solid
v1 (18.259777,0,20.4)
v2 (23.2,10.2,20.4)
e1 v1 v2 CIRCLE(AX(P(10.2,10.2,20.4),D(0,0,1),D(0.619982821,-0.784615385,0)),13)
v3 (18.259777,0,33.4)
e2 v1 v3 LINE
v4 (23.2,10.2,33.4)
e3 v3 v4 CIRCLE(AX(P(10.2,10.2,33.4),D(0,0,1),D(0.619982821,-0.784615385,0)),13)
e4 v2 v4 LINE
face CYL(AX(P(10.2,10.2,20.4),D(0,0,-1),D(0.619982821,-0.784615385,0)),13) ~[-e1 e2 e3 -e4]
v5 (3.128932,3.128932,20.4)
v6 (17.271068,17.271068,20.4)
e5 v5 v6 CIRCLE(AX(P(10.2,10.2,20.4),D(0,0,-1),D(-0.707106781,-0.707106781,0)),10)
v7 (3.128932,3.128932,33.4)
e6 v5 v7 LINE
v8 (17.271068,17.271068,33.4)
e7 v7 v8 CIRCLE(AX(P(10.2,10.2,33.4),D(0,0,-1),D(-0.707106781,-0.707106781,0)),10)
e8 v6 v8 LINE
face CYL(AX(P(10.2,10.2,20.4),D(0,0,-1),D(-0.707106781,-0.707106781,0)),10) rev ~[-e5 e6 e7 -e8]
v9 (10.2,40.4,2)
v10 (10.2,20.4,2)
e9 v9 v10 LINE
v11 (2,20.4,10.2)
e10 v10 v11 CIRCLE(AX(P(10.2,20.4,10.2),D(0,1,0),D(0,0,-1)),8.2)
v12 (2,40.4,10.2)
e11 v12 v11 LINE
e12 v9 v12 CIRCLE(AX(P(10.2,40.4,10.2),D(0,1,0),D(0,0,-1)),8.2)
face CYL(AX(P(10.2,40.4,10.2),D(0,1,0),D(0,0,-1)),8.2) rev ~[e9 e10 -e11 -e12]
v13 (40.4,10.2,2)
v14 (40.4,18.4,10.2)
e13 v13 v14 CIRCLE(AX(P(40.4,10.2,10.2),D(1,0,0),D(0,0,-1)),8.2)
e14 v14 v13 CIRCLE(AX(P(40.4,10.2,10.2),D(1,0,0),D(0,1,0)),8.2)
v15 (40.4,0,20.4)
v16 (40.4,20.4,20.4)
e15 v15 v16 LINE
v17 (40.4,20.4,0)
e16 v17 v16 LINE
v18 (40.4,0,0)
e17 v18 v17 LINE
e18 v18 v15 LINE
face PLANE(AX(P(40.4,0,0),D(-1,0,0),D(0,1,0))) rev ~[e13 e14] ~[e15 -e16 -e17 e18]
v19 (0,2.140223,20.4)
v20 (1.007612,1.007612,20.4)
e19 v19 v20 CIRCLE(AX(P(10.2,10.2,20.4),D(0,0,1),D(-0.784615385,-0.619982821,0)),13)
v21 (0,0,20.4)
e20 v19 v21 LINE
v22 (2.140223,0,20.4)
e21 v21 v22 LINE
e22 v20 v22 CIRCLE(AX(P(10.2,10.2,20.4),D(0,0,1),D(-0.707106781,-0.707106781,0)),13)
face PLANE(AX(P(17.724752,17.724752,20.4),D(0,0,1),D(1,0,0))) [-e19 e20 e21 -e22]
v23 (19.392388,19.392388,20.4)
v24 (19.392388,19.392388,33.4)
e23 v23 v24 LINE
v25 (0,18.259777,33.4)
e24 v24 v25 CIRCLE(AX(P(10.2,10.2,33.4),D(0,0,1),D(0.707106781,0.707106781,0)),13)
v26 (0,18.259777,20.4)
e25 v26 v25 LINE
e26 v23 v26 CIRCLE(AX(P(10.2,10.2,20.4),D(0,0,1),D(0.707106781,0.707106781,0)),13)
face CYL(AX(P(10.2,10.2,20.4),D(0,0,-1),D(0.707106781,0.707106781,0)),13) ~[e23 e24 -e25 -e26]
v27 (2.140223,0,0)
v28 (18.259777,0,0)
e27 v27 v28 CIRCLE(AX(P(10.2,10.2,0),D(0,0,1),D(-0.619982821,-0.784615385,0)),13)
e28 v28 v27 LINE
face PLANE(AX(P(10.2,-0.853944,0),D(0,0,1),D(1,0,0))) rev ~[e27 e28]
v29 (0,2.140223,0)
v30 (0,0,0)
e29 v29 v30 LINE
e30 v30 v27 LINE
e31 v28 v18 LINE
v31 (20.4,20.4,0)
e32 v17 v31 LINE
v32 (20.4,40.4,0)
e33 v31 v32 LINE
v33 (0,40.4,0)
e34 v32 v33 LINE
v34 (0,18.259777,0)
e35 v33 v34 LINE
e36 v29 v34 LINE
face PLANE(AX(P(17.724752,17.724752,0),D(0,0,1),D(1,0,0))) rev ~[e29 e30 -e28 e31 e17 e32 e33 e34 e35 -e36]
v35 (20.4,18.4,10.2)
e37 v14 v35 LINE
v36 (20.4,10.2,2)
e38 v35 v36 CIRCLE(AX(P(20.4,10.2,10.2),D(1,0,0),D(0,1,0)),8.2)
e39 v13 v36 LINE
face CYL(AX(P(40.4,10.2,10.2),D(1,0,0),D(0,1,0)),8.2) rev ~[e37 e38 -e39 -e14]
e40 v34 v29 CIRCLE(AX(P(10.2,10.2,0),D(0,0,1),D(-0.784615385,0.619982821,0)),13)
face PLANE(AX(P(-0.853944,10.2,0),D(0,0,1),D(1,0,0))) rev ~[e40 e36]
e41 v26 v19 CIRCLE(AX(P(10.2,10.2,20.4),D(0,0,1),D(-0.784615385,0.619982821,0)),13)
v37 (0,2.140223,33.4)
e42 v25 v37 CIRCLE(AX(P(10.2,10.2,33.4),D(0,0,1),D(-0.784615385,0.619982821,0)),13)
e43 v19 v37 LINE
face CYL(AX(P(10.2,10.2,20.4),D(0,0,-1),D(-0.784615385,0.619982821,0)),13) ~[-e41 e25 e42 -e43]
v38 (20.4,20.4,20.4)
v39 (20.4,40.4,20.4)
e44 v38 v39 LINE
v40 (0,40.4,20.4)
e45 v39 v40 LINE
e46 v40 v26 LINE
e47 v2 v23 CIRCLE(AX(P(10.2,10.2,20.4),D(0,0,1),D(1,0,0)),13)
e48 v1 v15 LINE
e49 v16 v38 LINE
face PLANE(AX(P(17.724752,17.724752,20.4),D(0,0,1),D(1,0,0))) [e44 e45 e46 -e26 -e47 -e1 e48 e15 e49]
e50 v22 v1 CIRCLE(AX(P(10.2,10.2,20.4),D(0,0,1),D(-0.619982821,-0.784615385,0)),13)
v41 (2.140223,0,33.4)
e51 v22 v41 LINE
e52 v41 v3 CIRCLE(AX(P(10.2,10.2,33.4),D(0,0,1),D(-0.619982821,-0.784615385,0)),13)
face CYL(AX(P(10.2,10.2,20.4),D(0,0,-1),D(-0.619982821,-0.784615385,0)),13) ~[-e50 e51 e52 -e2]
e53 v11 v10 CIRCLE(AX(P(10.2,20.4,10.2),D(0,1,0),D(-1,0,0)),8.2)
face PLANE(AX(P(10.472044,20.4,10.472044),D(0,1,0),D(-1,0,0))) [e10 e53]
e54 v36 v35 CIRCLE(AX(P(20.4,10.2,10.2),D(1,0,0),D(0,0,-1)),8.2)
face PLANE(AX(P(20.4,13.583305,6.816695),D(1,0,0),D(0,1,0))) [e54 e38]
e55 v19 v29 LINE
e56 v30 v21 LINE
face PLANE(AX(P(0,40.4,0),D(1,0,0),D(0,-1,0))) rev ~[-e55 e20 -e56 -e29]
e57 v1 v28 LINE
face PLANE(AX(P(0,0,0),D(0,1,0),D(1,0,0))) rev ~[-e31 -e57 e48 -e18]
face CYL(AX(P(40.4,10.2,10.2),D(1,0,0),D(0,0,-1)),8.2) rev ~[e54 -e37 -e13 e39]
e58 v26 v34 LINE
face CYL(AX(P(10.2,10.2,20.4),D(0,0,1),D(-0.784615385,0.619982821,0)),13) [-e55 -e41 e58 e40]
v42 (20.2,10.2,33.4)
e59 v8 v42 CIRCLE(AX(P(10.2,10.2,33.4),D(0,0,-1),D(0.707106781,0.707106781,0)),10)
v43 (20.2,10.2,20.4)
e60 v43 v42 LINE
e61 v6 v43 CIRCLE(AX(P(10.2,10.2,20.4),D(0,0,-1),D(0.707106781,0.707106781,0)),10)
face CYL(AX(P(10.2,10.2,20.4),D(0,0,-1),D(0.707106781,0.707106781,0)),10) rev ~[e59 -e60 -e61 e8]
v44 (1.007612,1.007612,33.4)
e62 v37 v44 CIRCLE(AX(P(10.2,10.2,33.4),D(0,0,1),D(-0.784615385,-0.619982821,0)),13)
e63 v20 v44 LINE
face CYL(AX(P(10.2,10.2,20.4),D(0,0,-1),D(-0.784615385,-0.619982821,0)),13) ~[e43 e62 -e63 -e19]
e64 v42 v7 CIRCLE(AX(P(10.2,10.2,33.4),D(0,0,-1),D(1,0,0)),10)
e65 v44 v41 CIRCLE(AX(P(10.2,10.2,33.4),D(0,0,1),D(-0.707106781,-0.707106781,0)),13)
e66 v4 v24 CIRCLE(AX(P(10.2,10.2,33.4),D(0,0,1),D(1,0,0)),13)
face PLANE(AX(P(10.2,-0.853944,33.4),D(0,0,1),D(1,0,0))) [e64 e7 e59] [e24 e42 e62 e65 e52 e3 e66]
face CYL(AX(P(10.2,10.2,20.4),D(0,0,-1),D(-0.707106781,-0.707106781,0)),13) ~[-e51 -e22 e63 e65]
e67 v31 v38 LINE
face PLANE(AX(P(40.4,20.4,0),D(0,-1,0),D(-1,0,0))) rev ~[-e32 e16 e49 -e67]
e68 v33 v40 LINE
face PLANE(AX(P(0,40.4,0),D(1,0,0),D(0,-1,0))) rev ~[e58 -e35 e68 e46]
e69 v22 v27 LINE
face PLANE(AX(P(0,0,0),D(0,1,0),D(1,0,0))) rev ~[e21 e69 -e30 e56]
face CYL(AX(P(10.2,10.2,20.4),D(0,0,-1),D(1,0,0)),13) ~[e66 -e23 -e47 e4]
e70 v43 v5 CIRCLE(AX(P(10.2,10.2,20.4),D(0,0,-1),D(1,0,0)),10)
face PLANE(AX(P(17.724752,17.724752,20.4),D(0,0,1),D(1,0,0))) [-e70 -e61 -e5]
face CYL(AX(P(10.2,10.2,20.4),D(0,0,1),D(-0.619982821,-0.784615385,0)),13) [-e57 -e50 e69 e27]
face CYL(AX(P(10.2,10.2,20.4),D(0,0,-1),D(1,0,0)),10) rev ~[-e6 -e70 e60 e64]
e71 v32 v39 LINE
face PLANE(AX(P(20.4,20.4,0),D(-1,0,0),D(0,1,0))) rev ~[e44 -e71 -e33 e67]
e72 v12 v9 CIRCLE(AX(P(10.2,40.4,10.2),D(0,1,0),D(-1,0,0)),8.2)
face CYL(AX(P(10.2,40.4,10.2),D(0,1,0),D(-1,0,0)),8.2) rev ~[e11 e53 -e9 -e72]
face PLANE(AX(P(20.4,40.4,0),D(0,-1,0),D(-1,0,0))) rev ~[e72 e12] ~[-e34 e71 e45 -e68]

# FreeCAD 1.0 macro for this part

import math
import FreeCAD as App
import Part
import Sketcher
from FreeCAD import Vector

doc = App.newDocument("Part")
body = doc.addObject("PartDesign::Body", "Body")

sketch1 = body.newObject("Sketcher::SketchObject", "Sketch")
sketch1.AttachmentSupport = (doc.getObject("XY_Plane"), [""])
sketch1.MapMode = "FlatFace"
sketch1.addGeometry([
    Part.LineSegment(Vector(0, 40.4, 0), Vector(0, 0, 0)),
    Part.LineSegment(Vector(0, 0, 0), Vector(40.4, 0, 0)),
    Part.LineSegment(Vector(40.4, 0, 0), Vector(40.4, 20.4, 0)),
    Part.LineSegment(Vector(40.4, 20.4, 0), Vector(20.4, 20.4, 0)),
    Part.LineSegment(Vector(20.4, 20.4, 0), Vector(20.4, 40.4, 0)),
    Part.LineSegment(Vector(20.4, 40.4, 0), Vector(0, 40.4, 0)),
], False)
sketch1.addConstraint([
    Sketcher.Constraint("Coincident", 0, 2, 1, 1),
    Sketcher.Constraint("Coincident", 1, 2, 2, 1),
    Sketcher.Constraint("Coincident", 2, 2, 3, 1),
    Sketcher.Constraint("Coincident", 3, 2, 4, 1),
    Sketcher.Constraint("Coincident", 4, 2, 5, 1),
    Sketcher.Constraint("Coincident", 5, 2, 0, 1),
    Sketcher.Constraint("Vertical", 0),
    Sketcher.Constraint("Horizontal", 1),
    Sketcher.Constraint("Vertical", 2),
    Sketcher.Constraint("Horizontal", 3),
    Sketcher.Constraint("Vertical", 4),
    Sketcher.Constraint("Horizontal", 5),
    Sketcher.Constraint("Coincident", 0, 2, -1, 1),
    Sketcher.Constraint("Equal", 1, 0),
    Sketcher.Constraint("Equal", 5, 2),
    Sketcher.Constraint("DistanceX", 3, 2, 3, 1, 20.0),
    Sketcher.Constraint("DistanceX", 1, 1, 1, 2, 40.4),
])
pad1 = body.newObject("PartDesign::Pad", "Pad")
pad1.Profile = sketch1
pad1.Length = 20.4

sketch2 = body.newObject("Sketcher::SketchObject", "Sketch001")
sketch2.AttachmentSupport = (doc.getObject("XZ_Plane"), [""])
sketch2.MapMode = "FlatFace"
sketch2.AttachmentOffset = App.Placement(Vector(0, 0, -40.4), App.Rotation())
sketch2.addGeometry([
    Part.ArcOfCircle(Part.Circle(Vector(10.2, 10.2, 0), Vector(0, 0, 1), 8.2), math.radians(-90), math.radians(180)),
    Part.ArcOfCircle(Part.Circle(Vector(10.2, 10.2, 0), Vector(0, 0, 1), 8.2), math.radians(180), math.radians(270)),
], False)
sketch2.addConstraint([
    Sketcher.Constraint("Tangent", 0, 1, 1, 2),
    Sketcher.Constraint("Coincident", 1, 1, 0, 2),
    Sketcher.Constraint("Horizontal", 0, 3, 1, 1),
    Sketcher.Constraint("Vertical", 1, 3, 0, 1),
    Sketcher.Constraint("Radius", 0, 8.2),
    Sketcher.Constraint("DistanceY", -1, 1, 0, 1, 2.0),
    Sketcher.Constraint("DistanceX", -1, 1, 1, 1, 2.0),
])
pocket1 = body.newObject("PartDesign::Pocket", "Pocket")
pocket1.Profile = sketch2
pocket1.Length = 20
pocket1.Reversed = True

sketch3 = body.newObject("Sketcher::SketchObject", "Sketch002")
sketch3.AttachmentSupport = (doc.getObject("YZ_Plane"), [""])
sketch3.MapMode = "FlatFace"
sketch3.AttachmentOffset = App.Placement(Vector(0, 0, 40.4), App.Rotation())
sketch3.addGeometry([
    Part.ArcOfCircle(Part.Circle(Vector(10.2, 10.2, 0), Vector(0, 0, 1), 8.2), math.radians(-90), math.radians(0)),
    Part.ArcOfCircle(Part.Circle(Vector(10.2, 10.2, 0), Vector(0, 0, 1), 8.2), math.radians(0), math.radians(270)),
], False)
sketch3.addConstraint([
    Sketcher.Constraint("Tangent", 0, 1, 1, 2),
    Sketcher.Constraint("Coincident", 1, 1, 0, 2),
    Sketcher.Constraint("Horizontal", 0, 3, 1, 1),
    Sketcher.Constraint("Vertical", 1, 3, 0, 1),
    Sketcher.Constraint("Radius", 0, 8.2),
    Sketcher.Constraint("DistanceY", -1, 1, 0, 1, 2.0),
    Sketcher.Constraint("DistanceX", -1, 1, 0, 3, 10.2),
])
pocket2 = body.newObject("PartDesign::Pocket", "Pocket001")
pocket2.Profile = sketch3
pocket2.Length = 20

sketch4 = body.newObject("Sketcher::SketchObject", "Sketch003")
sketch4.AttachmentSupport = (doc.getObject("XY_Plane"), [""])
sketch4.MapMode = "FlatFace"
sketch4.AttachmentOffset = App.Placement(Vector(0, 0, 20.4), App.Rotation())
sketch4.addGeometry([
    Part.ArcOfCircle(Part.Circle(Vector(10.2, 10.2, 0), Vector(0, 0, 1), 13), math.radians(-128.31488), math.radians(-51.68512)),
    Part.ArcOfCircle(Part.Circle(Vector(10.2, 10.2, 0), Vector(0, 0, 1), 13), math.radians(-51.68512), math.radians(0)),
    Part.ArcOfCircle(Part.Circle(Vector(10.2, 10.2, 0), Vector(0, 0, 1), 13), math.radians(0), math.radians(45)),
    Part.ArcOfCircle(Part.Circle(Vector(10.2, 10.2, 0), Vector(0, 0, 1), 13), math.radians(45), math.radians(141.68512)),
    Part.ArcOfCircle(Part.Circle(Vector(10.2, 10.2, 0), Vector(0, 0, 1), 13), math.radians(141.68512), math.radians(218.31488)),
    Part.ArcOfCircle(Part.Circle(Vector(10.2, 10.2, 0), Vector(0, 0, 1), 13), math.radians(-141.68512), math.radians(-135)),
    Part.ArcOfCircle(Part.Circle(Vector(10.2, 10.2, 0), Vector(0, 0, 1), 13), math.radians(-135), math.radians(-128.31488)),
    Part.ArcOfCircle(Part.Circle(Vector(10.2, 10.2, 0), Vector(0, 0, 1), 10), math.radians(0), math.radians(45)),
    Part.ArcOfCircle(Part.Circle(Vector(10.2, 10.2, 0), Vector(0, 0, 1), 10), math.radians(-135), math.radians(0)),
    Part.ArcOfCircle(Part.Circle(Vector(10.2, 10.2, 0), Vector(0, 0, 1), 10), math.radians(45), math.radians(225)),
], False)
sketch4.addConstraint([
    Sketcher.Constraint("Tangent", 0, 2, 1, 1),
    Sketcher.Constraint("Tangent", 1, 2, 2, 1),
    Sketcher.Constraint("Tangent", 2, 2, 3, 1),
    Sketcher.Constraint("Tangent", 3, 2, 4, 1),
    Sketcher.Constraint("Tangent", 4, 2, 5, 1),
    Sketcher.Constraint("Tangent", 5, 2, 6, 1),
    Sketcher.Constraint("Tangent", 6, 2, 0, 1),
    Sketcher.Constraint("Tangent", 7, 1, 8, 2),
    Sketcher.Constraint("Tangent", 8, 1, 9, 2),
    Sketcher.Constraint("Tangent", 9, 1, 7, 2),
    Sketcher.Constraint("Coincident", 2, 3, 0, 3),
    Sketcher.Constraint("Coincident", 4, 3, 0, 3),
    Sketcher.Constraint("Coincident", 7, 3, 0, 3),
    Sketcher.Constraint("PointOnObject", 0, 2, -1),
    Sketcher.Constraint("PointOnObject", 3, 2, -2),
    Sketcher.Constraint("PointOnObject", 4, 2, -2),
    Sketcher.Constraint("PointOnObject", 6, 2, -1),
    Sketcher.Constraint("Horizontal", 9, 3, 1, 2),
    Sketcher.Constraint("Horizontal", 1, 2, 7, 1),
    Sketcher.Constraint("Radius", 0, 13.0),
    Sketcher.Constraint("Radius", 7, 10.0),
    Sketcher.Constraint("DistanceX", -1, 1, 0, 3, 10.2),
    Sketcher.Constraint("DistanceY", -1, 1, 0, 3, 10.2),
    Sketcher.Constraint("DistanceX", -1, 1, 2, 2, 19.392388),
    Sketcher.Constraint("DistanceX", -1, 1, 5, 2, 1.007612),
    Sketcher.Constraint("DistanceX", 5, 2, 8, 1, 2.12132),
    Sketcher.Constraint("DistanceX", 9, 1, 2, 2, 2.12132),
])
pad2 = body.newObject("PartDesign::Pad", "Pad001")
pad2.Profile = sketch4
pad2.Length = 13

sketch5 = body.newObject("Sketcher::SketchObject", "Sketch004")
sketch5.AttachmentSupport = (doc.getObject("XY_Plane"), [""])
sketch5.MapMode = "FlatFace"
sketch5.AttachmentOffset = App.Placement(Vector(0, 0, 20.4), App.Rotation())
sketch5.addGeometry([
    Part.LineSegment(Vector(18.259777, 0, 0), Vector(2.140223, 0, 0)),
    Part.ArcOfCircle(Part.Circle(Vector(10.2, 10.2, 0), Vector(0, 0, 1), 13), math.radians(-128.31488), math.radians(-51.68512)),
], False)
sketch5.addConstraint([
    Sketcher.Constraint("Coincident", 0, 1, 1, 2),
    Sketcher.Constraint("Coincident", 1, 1, 0, 2),
    Sketcher.Constraint("Horizontal", 0),
    Sketcher.Constraint("PointOnObject", 0, 1, -1),
    Sketcher.Constraint("Radius", 1, 13.0),
    Sketcher.Constraint("DistanceX", -1, 1, 1, 3, 10.2),
    Sketcher.Constraint("DistanceY", -1, 1, 1, 3, 10.2),
])
pad3 = body.newObject("PartDesign::Pad", "Pad002")
pad3.Profile = sketch5
pad3.Length = 20.4
pad3.Reversed = True

sketch6 = body.newObject("Sketcher::SketchObject", "Sketch005")
sketch6.AttachmentSupport = (doc.getObject("XY_Plane"), [""])
sketch6.MapMode = "FlatFace"
sketch6.AttachmentOffset = App.Placement(Vector(0, 0, 20.4), App.Rotation())
sketch6.addGeometry([
    Part.ArcOfCircle(Part.Circle(Vector(10.2, 10.2, 0), Vector(0, 0, 1), 13), math.radians(141.68512), math.radians(218.31488)),
    Part.LineSegment(Vector(0, 2.140223, 0), Vector(0, 18.259777, 0)),
], False)
sketch6.addConstraint([
    Sketcher.Constraint("Coincident", 0, 1, 1, 2),
    Sketcher.Constraint("Coincident", 1, 1, 0, 2),
    Sketcher.Constraint("Vertical", 1),
    Sketcher.Constraint("PointOnObject", 0, 1, -2),
    Sketcher.Constraint("Radius", 0, 13.0),
    Sketcher.Constraint("DistanceX", -1, 1, 0, 3, 10.2),
    Sketcher.Constraint("DistanceY", -1, 1, 0, 3, 10.2),
])
pad4 = body.newObject("PartDesign::Pad", "Pad003")
pad4.Profile = sketch6
pad4.Length = 20.4
pad4.Reversed = True

doc.recompute()
